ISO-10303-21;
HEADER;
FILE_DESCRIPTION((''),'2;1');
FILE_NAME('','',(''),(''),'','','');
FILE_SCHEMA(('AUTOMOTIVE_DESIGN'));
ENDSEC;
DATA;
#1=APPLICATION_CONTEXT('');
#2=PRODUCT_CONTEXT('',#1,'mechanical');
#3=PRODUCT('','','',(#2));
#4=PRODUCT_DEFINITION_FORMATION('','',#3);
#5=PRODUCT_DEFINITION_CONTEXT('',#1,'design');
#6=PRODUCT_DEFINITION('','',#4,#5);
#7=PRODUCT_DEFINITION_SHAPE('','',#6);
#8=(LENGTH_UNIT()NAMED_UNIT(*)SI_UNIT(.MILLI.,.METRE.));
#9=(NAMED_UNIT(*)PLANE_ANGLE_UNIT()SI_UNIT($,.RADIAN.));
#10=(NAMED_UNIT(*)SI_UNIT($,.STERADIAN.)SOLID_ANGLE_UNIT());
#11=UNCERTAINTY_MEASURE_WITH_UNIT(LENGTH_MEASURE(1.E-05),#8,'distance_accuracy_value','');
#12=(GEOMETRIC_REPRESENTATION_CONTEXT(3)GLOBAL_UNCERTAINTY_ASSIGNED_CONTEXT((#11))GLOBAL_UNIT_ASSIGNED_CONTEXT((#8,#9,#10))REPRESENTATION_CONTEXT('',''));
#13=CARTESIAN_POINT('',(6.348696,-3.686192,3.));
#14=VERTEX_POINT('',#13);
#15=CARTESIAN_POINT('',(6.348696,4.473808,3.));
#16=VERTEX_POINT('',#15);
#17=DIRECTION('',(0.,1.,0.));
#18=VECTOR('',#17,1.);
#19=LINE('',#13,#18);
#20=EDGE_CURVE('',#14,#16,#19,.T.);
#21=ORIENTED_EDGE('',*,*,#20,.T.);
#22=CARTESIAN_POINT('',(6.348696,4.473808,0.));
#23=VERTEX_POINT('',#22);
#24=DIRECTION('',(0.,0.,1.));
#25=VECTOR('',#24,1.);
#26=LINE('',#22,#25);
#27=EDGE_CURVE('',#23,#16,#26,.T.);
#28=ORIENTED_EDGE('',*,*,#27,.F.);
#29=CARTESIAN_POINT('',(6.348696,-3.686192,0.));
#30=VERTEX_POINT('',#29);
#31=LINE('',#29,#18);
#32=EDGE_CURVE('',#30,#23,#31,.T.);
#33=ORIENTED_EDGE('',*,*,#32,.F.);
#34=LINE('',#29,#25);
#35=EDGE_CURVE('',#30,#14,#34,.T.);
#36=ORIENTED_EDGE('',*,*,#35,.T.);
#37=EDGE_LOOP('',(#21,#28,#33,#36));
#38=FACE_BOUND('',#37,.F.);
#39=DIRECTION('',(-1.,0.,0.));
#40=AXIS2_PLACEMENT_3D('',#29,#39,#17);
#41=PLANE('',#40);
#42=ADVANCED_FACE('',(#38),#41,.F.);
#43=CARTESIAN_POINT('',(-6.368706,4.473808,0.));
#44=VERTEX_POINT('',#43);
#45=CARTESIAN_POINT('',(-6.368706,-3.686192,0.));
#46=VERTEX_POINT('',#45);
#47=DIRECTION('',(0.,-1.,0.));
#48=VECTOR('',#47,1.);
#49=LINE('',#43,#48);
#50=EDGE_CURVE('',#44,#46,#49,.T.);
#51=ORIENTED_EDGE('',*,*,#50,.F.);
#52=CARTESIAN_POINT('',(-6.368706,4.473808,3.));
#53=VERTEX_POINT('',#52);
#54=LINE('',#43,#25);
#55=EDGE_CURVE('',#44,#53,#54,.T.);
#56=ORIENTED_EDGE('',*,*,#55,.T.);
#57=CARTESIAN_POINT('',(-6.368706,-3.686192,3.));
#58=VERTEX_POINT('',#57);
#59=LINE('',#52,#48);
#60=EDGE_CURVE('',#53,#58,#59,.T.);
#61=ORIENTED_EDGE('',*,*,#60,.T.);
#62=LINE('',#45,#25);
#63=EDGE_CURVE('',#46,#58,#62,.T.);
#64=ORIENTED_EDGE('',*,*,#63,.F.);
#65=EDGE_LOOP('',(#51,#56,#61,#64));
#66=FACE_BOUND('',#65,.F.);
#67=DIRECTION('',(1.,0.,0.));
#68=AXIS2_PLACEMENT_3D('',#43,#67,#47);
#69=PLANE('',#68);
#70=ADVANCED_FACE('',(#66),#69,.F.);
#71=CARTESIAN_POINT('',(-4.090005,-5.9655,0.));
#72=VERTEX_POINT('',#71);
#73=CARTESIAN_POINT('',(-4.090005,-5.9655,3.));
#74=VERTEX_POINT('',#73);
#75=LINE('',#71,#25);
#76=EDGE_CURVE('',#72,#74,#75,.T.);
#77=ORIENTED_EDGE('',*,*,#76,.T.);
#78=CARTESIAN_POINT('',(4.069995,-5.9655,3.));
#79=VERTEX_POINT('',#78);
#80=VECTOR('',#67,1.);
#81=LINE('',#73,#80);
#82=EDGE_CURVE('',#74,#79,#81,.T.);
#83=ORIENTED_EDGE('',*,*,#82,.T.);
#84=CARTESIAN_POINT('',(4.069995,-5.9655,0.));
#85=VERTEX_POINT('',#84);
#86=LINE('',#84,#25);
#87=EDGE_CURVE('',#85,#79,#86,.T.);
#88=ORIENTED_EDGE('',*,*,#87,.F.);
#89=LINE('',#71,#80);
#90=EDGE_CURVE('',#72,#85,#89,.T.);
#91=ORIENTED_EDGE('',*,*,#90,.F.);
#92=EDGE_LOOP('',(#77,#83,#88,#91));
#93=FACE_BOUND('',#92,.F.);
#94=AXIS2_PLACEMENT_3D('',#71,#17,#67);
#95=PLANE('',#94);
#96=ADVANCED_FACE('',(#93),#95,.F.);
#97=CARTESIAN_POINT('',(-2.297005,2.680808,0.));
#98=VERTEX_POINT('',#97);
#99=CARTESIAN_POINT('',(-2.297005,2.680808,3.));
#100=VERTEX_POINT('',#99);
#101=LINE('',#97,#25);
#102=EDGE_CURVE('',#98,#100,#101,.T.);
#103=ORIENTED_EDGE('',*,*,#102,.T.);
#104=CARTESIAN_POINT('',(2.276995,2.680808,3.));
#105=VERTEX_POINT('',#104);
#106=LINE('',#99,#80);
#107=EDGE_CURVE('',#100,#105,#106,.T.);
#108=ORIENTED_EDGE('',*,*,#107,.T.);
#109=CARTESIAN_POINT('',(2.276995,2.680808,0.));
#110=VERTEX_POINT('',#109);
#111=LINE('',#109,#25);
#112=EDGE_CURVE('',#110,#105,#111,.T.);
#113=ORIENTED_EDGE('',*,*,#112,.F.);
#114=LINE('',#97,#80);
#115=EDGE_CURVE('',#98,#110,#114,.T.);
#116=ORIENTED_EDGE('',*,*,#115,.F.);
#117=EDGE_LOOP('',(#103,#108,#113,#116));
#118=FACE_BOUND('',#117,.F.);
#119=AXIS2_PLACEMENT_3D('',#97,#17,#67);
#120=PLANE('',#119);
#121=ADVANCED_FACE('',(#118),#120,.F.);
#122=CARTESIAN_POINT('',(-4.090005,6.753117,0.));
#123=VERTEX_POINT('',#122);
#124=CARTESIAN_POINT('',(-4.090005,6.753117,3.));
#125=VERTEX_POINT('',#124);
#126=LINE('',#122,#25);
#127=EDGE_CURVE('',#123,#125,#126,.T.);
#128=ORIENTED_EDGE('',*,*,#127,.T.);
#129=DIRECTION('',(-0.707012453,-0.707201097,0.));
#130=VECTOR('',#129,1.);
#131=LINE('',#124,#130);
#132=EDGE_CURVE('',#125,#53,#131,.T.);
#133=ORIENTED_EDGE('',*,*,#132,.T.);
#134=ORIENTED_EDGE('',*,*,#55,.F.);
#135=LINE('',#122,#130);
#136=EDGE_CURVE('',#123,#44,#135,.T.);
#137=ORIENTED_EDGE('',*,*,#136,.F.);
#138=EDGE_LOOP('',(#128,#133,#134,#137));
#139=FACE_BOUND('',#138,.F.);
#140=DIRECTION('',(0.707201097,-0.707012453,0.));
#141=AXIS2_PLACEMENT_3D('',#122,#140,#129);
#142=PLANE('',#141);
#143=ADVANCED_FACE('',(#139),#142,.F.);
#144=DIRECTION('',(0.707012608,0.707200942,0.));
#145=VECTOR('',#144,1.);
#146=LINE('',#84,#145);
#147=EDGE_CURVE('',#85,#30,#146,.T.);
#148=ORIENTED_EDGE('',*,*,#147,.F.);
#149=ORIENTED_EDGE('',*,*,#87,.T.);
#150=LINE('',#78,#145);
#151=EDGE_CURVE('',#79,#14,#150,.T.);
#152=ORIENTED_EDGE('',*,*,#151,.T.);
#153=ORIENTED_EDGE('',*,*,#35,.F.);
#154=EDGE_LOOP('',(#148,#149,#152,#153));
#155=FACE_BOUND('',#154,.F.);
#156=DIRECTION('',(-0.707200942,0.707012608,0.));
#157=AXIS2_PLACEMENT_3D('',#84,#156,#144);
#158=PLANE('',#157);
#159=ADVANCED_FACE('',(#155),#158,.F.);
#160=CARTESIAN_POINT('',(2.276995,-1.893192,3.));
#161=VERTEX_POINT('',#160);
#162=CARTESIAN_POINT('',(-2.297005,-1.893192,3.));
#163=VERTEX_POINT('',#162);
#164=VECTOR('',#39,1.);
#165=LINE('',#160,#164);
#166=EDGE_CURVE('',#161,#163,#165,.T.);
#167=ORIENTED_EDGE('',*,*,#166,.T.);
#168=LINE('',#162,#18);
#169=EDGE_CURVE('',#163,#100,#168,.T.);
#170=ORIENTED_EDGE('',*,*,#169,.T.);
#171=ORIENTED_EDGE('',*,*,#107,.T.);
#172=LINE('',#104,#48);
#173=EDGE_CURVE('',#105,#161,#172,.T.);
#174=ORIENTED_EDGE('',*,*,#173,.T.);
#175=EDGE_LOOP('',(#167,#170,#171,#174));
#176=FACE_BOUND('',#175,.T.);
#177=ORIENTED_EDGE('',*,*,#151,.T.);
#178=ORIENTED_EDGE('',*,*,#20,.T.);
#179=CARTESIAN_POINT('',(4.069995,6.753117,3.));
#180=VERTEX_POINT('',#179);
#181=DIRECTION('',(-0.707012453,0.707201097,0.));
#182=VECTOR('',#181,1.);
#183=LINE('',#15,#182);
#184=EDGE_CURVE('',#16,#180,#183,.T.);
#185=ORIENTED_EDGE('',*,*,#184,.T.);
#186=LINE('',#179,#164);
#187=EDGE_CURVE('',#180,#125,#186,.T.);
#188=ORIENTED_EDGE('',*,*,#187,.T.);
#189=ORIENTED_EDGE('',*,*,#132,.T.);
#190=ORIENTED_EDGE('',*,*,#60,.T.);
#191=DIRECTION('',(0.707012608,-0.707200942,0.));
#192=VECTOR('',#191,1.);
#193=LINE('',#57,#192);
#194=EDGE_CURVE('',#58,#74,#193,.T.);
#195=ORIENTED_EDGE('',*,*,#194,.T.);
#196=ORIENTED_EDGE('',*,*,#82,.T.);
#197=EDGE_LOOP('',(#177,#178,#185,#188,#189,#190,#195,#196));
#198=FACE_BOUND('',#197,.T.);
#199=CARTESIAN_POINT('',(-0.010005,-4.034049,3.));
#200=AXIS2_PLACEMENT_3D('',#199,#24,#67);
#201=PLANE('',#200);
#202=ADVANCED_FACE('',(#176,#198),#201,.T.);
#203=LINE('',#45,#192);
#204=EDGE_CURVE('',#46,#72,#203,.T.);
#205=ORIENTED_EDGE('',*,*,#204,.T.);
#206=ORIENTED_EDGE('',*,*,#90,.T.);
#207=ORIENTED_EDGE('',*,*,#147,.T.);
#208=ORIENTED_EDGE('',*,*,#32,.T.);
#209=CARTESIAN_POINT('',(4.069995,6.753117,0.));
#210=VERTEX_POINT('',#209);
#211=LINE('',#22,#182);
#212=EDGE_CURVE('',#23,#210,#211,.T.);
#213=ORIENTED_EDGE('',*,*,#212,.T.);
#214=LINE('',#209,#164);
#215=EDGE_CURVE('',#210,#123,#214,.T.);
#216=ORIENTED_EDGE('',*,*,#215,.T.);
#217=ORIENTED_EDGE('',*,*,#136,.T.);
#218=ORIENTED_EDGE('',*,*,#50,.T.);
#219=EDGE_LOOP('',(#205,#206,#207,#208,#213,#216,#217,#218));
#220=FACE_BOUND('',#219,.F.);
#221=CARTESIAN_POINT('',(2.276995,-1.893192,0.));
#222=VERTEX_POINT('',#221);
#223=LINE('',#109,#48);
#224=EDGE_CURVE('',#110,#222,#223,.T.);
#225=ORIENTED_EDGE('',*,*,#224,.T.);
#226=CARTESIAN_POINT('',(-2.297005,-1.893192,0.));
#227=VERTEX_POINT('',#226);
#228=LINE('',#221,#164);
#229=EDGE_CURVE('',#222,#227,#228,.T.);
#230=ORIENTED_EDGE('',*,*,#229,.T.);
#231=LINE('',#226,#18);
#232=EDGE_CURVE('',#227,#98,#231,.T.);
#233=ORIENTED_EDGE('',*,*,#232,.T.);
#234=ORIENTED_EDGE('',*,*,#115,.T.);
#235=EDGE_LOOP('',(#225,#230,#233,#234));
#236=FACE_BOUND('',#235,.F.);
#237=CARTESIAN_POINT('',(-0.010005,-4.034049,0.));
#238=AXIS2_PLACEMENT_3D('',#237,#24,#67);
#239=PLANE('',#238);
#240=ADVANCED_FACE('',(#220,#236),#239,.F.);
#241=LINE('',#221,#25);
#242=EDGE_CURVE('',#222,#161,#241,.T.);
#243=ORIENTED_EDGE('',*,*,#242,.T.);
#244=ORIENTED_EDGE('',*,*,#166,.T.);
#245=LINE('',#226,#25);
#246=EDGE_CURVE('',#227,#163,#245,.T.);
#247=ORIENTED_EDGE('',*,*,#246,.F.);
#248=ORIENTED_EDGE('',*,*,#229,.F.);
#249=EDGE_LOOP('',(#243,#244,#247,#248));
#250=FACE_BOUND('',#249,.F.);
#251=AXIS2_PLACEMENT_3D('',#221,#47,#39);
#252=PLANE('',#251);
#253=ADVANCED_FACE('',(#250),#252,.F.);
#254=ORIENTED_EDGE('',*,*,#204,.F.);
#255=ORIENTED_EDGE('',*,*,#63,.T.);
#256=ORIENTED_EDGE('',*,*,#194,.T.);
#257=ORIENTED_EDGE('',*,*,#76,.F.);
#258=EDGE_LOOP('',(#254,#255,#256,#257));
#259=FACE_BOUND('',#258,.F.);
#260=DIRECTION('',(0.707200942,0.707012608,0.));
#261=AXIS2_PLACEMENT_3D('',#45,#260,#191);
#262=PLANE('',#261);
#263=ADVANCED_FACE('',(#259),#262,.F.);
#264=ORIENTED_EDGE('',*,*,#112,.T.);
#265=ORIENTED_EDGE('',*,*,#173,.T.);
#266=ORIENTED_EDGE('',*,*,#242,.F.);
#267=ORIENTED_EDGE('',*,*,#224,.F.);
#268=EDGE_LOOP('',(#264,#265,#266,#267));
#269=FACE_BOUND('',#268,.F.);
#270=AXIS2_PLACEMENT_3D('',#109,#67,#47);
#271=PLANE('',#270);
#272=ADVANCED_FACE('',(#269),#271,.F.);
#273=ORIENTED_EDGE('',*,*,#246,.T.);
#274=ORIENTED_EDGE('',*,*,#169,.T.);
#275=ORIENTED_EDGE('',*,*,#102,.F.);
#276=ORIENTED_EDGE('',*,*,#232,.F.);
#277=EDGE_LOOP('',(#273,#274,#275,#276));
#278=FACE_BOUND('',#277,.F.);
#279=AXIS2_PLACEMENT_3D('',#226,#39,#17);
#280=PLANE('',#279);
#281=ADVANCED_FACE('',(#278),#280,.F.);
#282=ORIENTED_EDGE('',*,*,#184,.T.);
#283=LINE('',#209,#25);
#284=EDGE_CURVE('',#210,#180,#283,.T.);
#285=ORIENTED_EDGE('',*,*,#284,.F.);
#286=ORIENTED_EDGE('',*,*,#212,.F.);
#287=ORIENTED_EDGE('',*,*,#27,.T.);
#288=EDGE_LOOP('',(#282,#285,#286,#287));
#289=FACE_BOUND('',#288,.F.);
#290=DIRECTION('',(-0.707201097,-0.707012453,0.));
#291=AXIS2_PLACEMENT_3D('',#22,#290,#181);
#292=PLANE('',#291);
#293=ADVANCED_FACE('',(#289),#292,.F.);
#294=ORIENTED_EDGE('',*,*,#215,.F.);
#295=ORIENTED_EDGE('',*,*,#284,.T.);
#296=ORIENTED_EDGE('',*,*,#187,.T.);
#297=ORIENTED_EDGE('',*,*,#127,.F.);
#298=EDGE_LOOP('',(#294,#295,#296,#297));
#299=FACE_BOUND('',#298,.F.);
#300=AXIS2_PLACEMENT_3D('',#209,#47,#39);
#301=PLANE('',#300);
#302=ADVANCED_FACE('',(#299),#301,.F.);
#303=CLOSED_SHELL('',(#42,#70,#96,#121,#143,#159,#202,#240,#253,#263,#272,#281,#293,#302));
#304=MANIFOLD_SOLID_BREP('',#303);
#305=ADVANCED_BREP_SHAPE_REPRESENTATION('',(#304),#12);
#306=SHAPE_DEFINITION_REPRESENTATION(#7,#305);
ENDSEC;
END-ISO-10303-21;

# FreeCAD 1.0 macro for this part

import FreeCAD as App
import Part
import Sketcher
from FreeCAD import Vector
Q = App.Units.Quantity


def add_polygon(sketch, points):
    """Adds a closed chain of lines whose ends are joined by coincident constraints."""
    first, n = sketch.GeometryCount, len(points)
    for a, b in zip(points, points[1:] + points[:1]):
        sketch.addGeometry(Part.LineSegment(App.Vector(*a, 0), App.Vector(*b, 0)), False)
    for i in range(n):
        sketch.addConstraint(Sketcher.Constraint("Coincident", first + i, 2, first + (i + 1) % n, 1))

doc = App.newDocument("Part")
body = doc.addObject("PartDesign::Body", "Body")

# Sketch on XY plane
sketch1 = body.newObject("Sketcher::SketchObject", "Sketch")
sketch1.AttachmentSupport = (doc.getObject("XY_Plane"), [""])
sketch1.MapMode = "FlatFace"
add_polygon(sketch1, [(-6.4, -3.7), (-4.1, -6), (4.1, -6), (6.3, -3.7), (6.3, 4.5), (4.1, 6.8), (-4.1, 6.8), (-6.4, 4.5)])  # lines 0-7
add_polygon(sketch1, [(2.3, 2.7), (2.3, -1.9), (-2.3, -1.9), (-2.3, 2.7)])  # lines 8-11
sketch1.addConstraint([
    Sketcher.Constraint("Horizontal", 1),
    Sketcher.Constraint("Vertical", 3),
    Sketcher.Constraint("Horizontal", 5),
    Sketcher.Constraint("Vertical", 7),
    Sketcher.Constraint("Vertical", 8),
    Sketcher.Constraint("Horizontal", 9),
    Sketcher.Constraint("Vertical", 10),
    Sketcher.Constraint("Horizontal", 11),
    Sketcher.Constraint("Parallel", 0, 4),
    Sketcher.Constraint("Parallel", 2, 6),
    Sketcher.Constraint("Horizontal", 3, 2, 6, 2),
    Sketcher.Constraint("Horizontal", 2, 2, 7, 2),
    Sketcher.Constraint("Vertical", 1, 2, 4, 2),
    Sketcher.Constraint("Vertical", 0, 2, 5, 2),
    Sketcher.Constraint("Equal", 5, 3),
    Sketcher.Constraint("Equal", 11, 8),
    Sketcher.Constraint("DistanceX", 1, 1, 1, 2, Q("8.16 mm")),
    Sketcher.Constraint("DistanceX", 9, 2, 9, 1, Q("4.574 mm")),
    Sketcher.Constraint("Distance", 0, Q("3.222999 mm")),
    Sketcher.Constraint("DistanceY", 2, 2, 8, 2, Q("1.793 mm")),
    Sketcher.Constraint("DistanceX", 8, 2, 1, 2, Q("1.793 mm")),
    Sketcher.Constraint("DistanceY", 0, 2, -1, 1, Q("5.9655 mm")),
    Sketcher.Constraint("DistanceX", 1, 2, 2, 2, Q("2.278701 mm")),
    Sketcher.Constraint("DistanceX", 0, 2, -1, 1, Q("4.090005 mm")),
])
pad1 = body.newObject("PartDesign::Pad", "Pad")
pad1.Profile = sketch1
pad1.Length = 3

doc.recompute()
